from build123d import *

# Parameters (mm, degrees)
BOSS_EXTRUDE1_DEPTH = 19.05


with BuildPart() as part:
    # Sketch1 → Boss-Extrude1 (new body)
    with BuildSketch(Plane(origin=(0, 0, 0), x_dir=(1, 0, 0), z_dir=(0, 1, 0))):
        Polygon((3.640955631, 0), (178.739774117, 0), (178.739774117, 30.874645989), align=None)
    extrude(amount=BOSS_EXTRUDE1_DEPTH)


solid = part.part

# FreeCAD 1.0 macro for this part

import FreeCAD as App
import Part
import Sketcher

V = App.Vector
Q = App.Units.Quantity


def add_polygon(sketch, points):
    """Adds a closed chain of lines whose ends are joined by coincident constraints."""
    first, n = sketch.GeometryCount, len(points)
    for a, b in zip(points, points[1:] + points[:1]):
        sketch.addGeometry(Part.LineSegment(App.Vector(*a, 0), App.Vector(*b, 0)), False)
    for i in range(n):
        sketch.addConstraint(Sketcher.Constraint("Coincident", first + i, 2, first + (i + 1) % n, 1))

doc = App.newDocument("Part")
params = doc.addObject("Spreadsheet::Sheet", "Params")
for row, (alias, value) in enumerate([
    ("sketch1_length", "7 in"),
    ("pad1_length", "0.75 in"),
], start=1):
    params.set(f"A{row}", alias)
    params.set(f"B{row}", "=" + value)
    params.setAlias(f"B{row}", alias)

body = doc.addObject("PartDesign::Body", "Body")

# Sketch on XZ plane
sketch1 = body.newObject("Sketcher::SketchObject", "Sketch")
sketch1.AttachmentSupport = (doc.getObject("XZ_Plane"), [""])
sketch1.MapMode = "FlatFace"
add_polygon(sketch1, [(3.640956, 0), (178.739774, 0), (178.739774, -30.874646)])  # lines 0-2
sketch1.addConstraint(Sketcher.Constraint("Horizontal", 0))
sketch1.addConstraint(Sketcher.Constraint("Vertical", 1))
sketch1.addConstraint(Sketcher.Constraint("PointOnObject", 0, 2, -1))
sketch1.addConstraint(Sketcher.Constraint("Distance", 2, Q("7 in")))
sketch1.addConstraint(Sketcher.Constraint("Angle", 2, Q("170 deg")))
sketch1.addConstraint(Sketcher.Constraint("DistanceX", -1, 1, 0, 2, 178.739774))
sketch1.setExpression("Constraints[6]", "Params.sketch1_length")
pad1 = body.newObject("PartDesign::Pad", "Pad")
pad1.Profile = sketch1
pad1.setExpression("Length", "Params.pad1_length")
pad1.Reversed = True

doc.recompute()
